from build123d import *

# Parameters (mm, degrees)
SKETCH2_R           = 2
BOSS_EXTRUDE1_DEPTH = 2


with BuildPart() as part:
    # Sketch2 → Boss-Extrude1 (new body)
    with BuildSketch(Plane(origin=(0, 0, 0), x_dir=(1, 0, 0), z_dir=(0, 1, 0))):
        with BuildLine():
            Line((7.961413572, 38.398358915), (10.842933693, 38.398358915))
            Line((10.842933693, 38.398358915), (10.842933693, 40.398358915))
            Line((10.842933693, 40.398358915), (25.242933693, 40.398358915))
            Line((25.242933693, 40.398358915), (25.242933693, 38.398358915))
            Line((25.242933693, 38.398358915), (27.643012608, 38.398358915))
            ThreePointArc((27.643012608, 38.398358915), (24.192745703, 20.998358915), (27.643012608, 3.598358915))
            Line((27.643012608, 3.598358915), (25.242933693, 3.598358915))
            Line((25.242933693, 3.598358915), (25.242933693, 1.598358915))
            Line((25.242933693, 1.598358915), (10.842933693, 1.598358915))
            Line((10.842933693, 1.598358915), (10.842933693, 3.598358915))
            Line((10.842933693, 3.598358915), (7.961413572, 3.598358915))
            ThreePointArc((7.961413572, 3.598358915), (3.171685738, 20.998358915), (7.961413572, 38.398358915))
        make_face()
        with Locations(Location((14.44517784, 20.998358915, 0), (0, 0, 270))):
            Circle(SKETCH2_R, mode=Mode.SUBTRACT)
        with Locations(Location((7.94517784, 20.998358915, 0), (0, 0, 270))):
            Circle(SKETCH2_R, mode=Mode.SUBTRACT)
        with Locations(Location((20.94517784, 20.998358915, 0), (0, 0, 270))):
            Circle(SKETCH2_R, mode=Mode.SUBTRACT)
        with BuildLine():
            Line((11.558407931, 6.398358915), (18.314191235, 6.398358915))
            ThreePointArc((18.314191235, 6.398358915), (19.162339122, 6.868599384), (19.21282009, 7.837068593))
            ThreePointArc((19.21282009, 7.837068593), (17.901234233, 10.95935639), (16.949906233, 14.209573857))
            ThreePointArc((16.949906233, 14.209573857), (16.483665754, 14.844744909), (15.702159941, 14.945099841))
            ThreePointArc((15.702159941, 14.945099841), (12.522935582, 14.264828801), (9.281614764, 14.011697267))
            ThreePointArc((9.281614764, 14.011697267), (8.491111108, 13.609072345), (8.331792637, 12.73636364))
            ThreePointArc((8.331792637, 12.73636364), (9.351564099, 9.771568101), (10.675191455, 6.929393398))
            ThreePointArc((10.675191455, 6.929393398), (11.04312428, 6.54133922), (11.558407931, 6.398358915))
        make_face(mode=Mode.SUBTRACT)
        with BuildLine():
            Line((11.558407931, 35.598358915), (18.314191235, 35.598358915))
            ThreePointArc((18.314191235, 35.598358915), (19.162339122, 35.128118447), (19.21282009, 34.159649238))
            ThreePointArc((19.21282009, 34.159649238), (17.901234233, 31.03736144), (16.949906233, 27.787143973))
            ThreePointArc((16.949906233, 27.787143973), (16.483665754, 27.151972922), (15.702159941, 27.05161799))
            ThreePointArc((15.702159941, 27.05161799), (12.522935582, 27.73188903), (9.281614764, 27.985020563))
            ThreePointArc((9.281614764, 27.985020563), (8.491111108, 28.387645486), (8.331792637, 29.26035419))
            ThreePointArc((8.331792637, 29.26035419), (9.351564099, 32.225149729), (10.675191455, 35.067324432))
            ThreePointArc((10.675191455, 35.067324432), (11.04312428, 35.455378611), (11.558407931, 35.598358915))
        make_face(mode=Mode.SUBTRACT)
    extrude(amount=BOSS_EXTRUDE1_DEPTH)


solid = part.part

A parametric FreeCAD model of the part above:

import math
import FreeCAD as App
import Part
import Sketcher
Q = App.Units.Quantity

doc = App.newDocument("Part")
params = doc.addObject("Spreadsheet::Sheet", "Params")
for row, (alias, value) in enumerate([
    ("sketch1_diameter", "4 mm"),
    ("sketch1_radius", "34 mm"),
    ("sketch1_radius2", "1 mm"),
    ("sketch1_radius3", "30 mm"),
    ("sketch1_radius4", "45.6 mm"),
    ("pad1_length", "2 mm"),
], start=1):
    params.set(f"A{row}", alias)
    params.set(f"B{row}", "=" + value)
    params.setAlias(f"B{row}", alias)

body = doc.addObject("PartDesign::Body", "Body")

# Sketch on XZ plane
sketch1 = body.newObject("Sketcher::SketchObject", "Sketch")
sketch1.AttachmentSupport = (doc.getObject("XZ_Plane"), [""])
sketch1.MapMode = "FlatFace"
sketch1.addGeometry(Part.LineSegment(App.Vector(10.842934, -38.398359, 0), App.Vector(7.961414, -38.398359, 0)), False)
sketch1.addGeometry(Part.ArcOfCircle(Part.Circle(App.Vector(37.171686, -20.998359, 0), App.Vector(0, 0, 1), 34), math.radians(149.218552), math.radians(210.781448)), False)
sketch1.addGeometry(Part.LineSegment(App.Vector(7.961414, -3.598359, 0), App.Vector(10.842934, -3.598359, 0)), False)
sketch1.addGeometry(Part.LineSegment(App.Vector(10.842934, -3.598359, 0), App.Vector(10.842934, -1.598359, 0)), False)
sketch1.addGeometry(Part.LineSegment(App.Vector(10.842934, -1.598359, 0), App.Vector(25.242934, -1.598359, 0)), False)
sketch1.addGeometry(Part.LineSegment(App.Vector(25.242934, -1.598359, 0), App.Vector(25.242934, -3.598359, 0)), False)
sketch1.addGeometry(Part.LineSegment(App.Vector(25.242934, -3.598359, 0), App.Vector(27.643013, -3.598359, 0)), False)
sketch1.addGeometry(Part.ArcOfCircle(Part.Circle(App.Vector(69.792746, -20.998359, 0), App.Vector(0, 0, 1), 45.6), math.radians(157.568479), math.radians(202.431521)), False)
sketch1.addGeometry(Part.LineSegment(App.Vector(27.643013, -38.398359, 0), App.Vector(25.242934, -38.398359, 0)), False)
sketch1.addGeometry(Part.LineSegment(App.Vector(25.242934, -38.398359, 0), App.Vector(25.242934, -40.398359, 0)), False)
sketch1.addGeometry(Part.LineSegment(App.Vector(25.242934, -40.398359, 0), App.Vector(10.842934, -40.398359, 0)), False)
sketch1.addGeometry(Part.LineSegment(App.Vector(10.842934, -40.398359, 0), App.Vector(10.842934, -38.398359, 0)), False)
sketch1.addGeometry(Part.ArcOfCircle(Part.Circle(App.Vector(11.558408, -7.398359, 0), App.Vector(0, 0, 1), 1), math.radians(90), math.radians(152.032833)), False)
sketch1.addGeometry(Part.ArcOfCircle(Part.Circle(App.Vector(37.171686, -20.998359, 0), App.Vector(0, 0, 1), 30), math.radians(152.032833), math.radians(164.014156)), False)
sketch1.addGeometry(Part.ArcOfCircle(Part.Circle(App.Vector(9.293122, -13.011763, 0), App.Vector(0, 0, 1), 1), math.radians(164.014156), math.radians(269.340646)), False)
sketch1.addGeometry(Part.ArcOfCircle(Part.Circle(App.Vector(8.999803, -38.499211, 0), App.Vector(0, 0, 1), 24.489135), math.radians(74.116218), math.radians(89.340646)), False)
sketch1.addGeometry(Part.ArcOfCircle(Part.Circle(App.Vector(15.975847, -13.983281, 0), App.Vector(0, 0, 1), 1), math.radians(-105.883782), math.radians(-13.078913)), False)
sketch1.addGeometry(Part.ArcOfCircle(Part.Circle(App.Vector(46.171686, -20.998359, 0), App.Vector(0, 0, 1), 30), math.radians(153.978418), math.radians(166.921087)), False)
sketch1.addGeometry(Part.ArcOfCircle(Part.Circle(App.Vector(18.314191, -7.398359, 0), App.Vector(0, 0, 1), 1), math.radians(-26.021582), math.radians(90)), False)
sketch1.addGeometry(Part.LineSegment(App.Vector(18.314191, -6.398359, 0), App.Vector(11.558408, -6.398359, 0)), False)
sketch1.addGeometry(Part.Circle(App.Vector(20.945178, -20.998359, 0), App.Vector(0, 0, 1), 2), False)
sketch1.addGeometry(Part.Circle(App.Vector(14.445178, -20.998359, 0), App.Vector(0, 0, 1), 2), False)
sketch1.addGeometry(Part.Circle(App.Vector(7.945178, -20.998359, 0), App.Vector(0, 0, 1), 2), False)
sketch1.addGeometry(Part.LineSegment(App.Vector(11.558408, -35.598359, 0), App.Vector(18.314191, -35.598359, 0)), False)
sketch1.addGeometry(Part.ArcOfCircle(Part.Circle(App.Vector(18.314191, -34.598359, 0), App.Vector(0, 0, 1), 1), math.radians(-90), math.radians(26.021582)), False)
sketch1.addGeometry(Part.ArcOfCircle(Part.Circle(App.Vector(46.171686, -20.998359, 0), App.Vector(0, 0, 1), 30), math.radians(-166.921087), math.radians(-153.978418)), False)
sketch1.addGeometry(Part.ArcOfCircle(Part.Circle(App.Vector(15.975847, -28.013437, 0), App.Vector(0, 0, 1), 1), math.radians(13.078913), math.radians(105.883782)), False)
sketch1.addGeometry(Part.ArcOfCircle(Part.Circle(App.Vector(8.999803, -3.497507, 0), App.Vector(0, 0, 1), 24.489135), math.radians(-89.340646), math.radians(-74.116218)), False)
sketch1.addGeometry(Part.ArcOfCircle(Part.Circle(App.Vector(9.293122, -28.984954, 0), App.Vector(0, 0, 1), 1), math.radians(90.659354), math.radians(195.985844)), False)
sketch1.addGeometry(Part.ArcOfCircle(Part.Circle(App.Vector(37.171686, -20.998359, 0), App.Vector(0, 0, 1), 30), math.radians(-164.014156), math.radians(-152.032833)), False)
sketch1.addGeometry(Part.ArcOfCircle(Part.Circle(App.Vector(11.558408, -34.598359, 0), App.Vector(0, 0, 1), 1), math.radians(-152.032833), math.radians(-90)), False)
sketch1.addConstraint(Sketcher.Constraint("Coincident", 0, 2, 1, 2))
sketch1.addConstraint(Sketcher.Constraint("Coincident", 1, 1, 2, 1))
sketch1.addConstraint(Sketcher.Constraint("Coincident", 2, 2, 3, 1))
sketch1.addConstraint(Sketcher.Constraint("Coincident", 3, 2, 4, 1))
sketch1.addConstraint(Sketcher.Constraint("Coincident", 4, 2, 5, 1))
sketch1.addConstraint(Sketcher.Constraint("Coincident", 5, 2, 6, 1))
sketch1.addConstraint(Sketcher.Constraint("Coincident", 6, 2, 7, 1))
sketch1.addConstraint(Sketcher.Constraint("Coincident", 7, 2, 8, 1))
sketch1.addConstraint(Sketcher.Constraint("Coincident", 8, 2, 9, 1))
sketch1.addConstraint(Sketcher.Constraint("Coincident", 9, 2, 10, 1))
sketch1.addConstraint(Sketcher.Constraint("Coincident", 10, 2, 11, 1))
sketch1.addConstraint(Sketcher.Constraint("Coincident", 11, 2, 0, 1))
sketch1.addConstraint(Sketcher.Constraint("Tangent", 12, 2, 13, 1))
sketch1.addConstraint(Sketcher.Constraint("Tangent", 13, 2, 14, 1))
sketch1.addConstraint(Sketcher.Constraint("Tangent", 14, 2, 15, 2))
sketch1.addConstraint(Sketcher.Constraint("Tangent", 15, 1, 16, 1))
sketch1.addConstraint(Sketcher.Constraint("Tangent", 16, 2, 17, 2))
sketch1.addConstraint(Sketcher.Constraint("Tangent", 17, 1, 18, 1))
sketch1.addConstraint(Sketcher.Constraint("Tangent", 18, 2, 19, 1))
sketch1.addConstraint(Sketcher.Constraint("Tangent", 19, 2, 12, 1))
sketch1.addConstraint(Sketcher.Constraint("Tangent", 23, 2, 24, 1))
sketch1.addConstraint(Sketcher.Constraint("Tangent", 24, 2, 25, 2))
sketch1.addConstraint(Sketcher.Constraint("Tangent", 25, 1, 26, 1))
sketch1.addConstraint(Sketcher.Constraint("Tangent", 26, 2, 27, 2))
sketch1.addConstraint(Sketcher.Constraint("Tangent", 27, 1, 28, 1))
sketch1.addConstraint(Sketcher.Constraint("Tangent", 28, 2, 29, 1))
sketch1.addConstraint(Sketcher.Constraint("Tangent", 29, 2, 30, 1))
sketch1.addConstraint(Sketcher.Constraint("Tangent", 30, 2, 23, 1))
sketch1.addConstraint(Sketcher.Constraint("Horizontal", 0))
sketch1.addConstraint(Sketcher.Constraint("Horizontal", 2))
sketch1.addConstraint(Sketcher.Constraint("Vertical", 3))
sketch1.addConstraint(Sketcher.Constraint("Horizontal", 4))
sketch1.addConstraint(Sketcher.Constraint("Vertical", 5))
sketch1.addConstraint(Sketcher.Constraint("Horizontal", 6))
sketch1.addConstraint(Sketcher.Constraint("Horizontal", 8))
sketch1.addConstraint(Sketcher.Constraint("Vertical", 9))
sketch1.addConstraint(Sketcher.Constraint("Horizontal", 10))
sketch1.addConstraint(Sketcher.Constraint("Vertical", 11))
sketch1.addConstraint(Sketcher.Constraint("Horizontal", 19))
sketch1.addConstraint(Sketcher.Constraint("Horizontal", 23))
sketch1.addConstraint(Sketcher.Constraint("Coincident", 13, 3, 1, 3))
sketch1.addConstraint(Sketcher.Constraint("Coincident", 25, 3, 17, 3))
sketch1.addConstraint(Sketcher.Constraint("Coincident", 29, 3, 1, 3))
sketch1.addConstraint(Sketcher.Constraint("Equal", 12, 14))
sketch1.addConstraint(Sketcher.Constraint("Equal", 14, 16))
sketch1.addConstraint(Sketcher.Constraint("Equal", 13, 17))
sketch1.addConstraint(Sketcher.Constraint("Equal", 16, 18))
sketch1.addConstraint(Sketcher.Constraint("Equal", 20, 21))
sketch1.addConstraint(Sketcher.Constraint("Equal", 21, 22))
sketch1.addConstraint(Sketcher.Constraint("Equal", 18, 24))
sketch1.addConstraint(Sketcher.Constraint("Equal", 17, 25))
sketch1.addConstraint(Sketcher.Constraint("Equal", 24, 26))
sketch1.addConstraint(Sketcher.Constraint("Equal", 15, 27))
sketch1.addConstraint(Sketcher.Constraint("Equal", 26, 28))
sketch1.addConstraint(Sketcher.Constraint("Equal", 25, 29))
sketch1.addConstraint(Sketcher.Constraint("Equal", 28, 30))
sketch1.addConstraint(Sketcher.Constraint("Horizontal", 1, 3, 7, 3))
sketch1.addConstraint(Sketcher.Constraint("Horizontal", 13, 3, 17, 3))
sketch1.addConstraint(Sketcher.Constraint("Horizontal", 17, 3, 20, 3))
sketch1.addConstraint(Sketcher.Constraint("Horizontal", 20, 3, 21, 3))
sketch1.addConstraint(Sketcher.Constraint("Horizontal", 21, 3, 22, 3))
sketch1.addConstraint(Sketcher.Constraint("Horizontal", 2, 2, 5, 2))
sketch1.addConstraint(Sketcher.Constraint("Horizontal", 0, 2, 7, 2))
sketch1.addConstraint(Sketcher.Constraint("Vertical", 18, 3, 24, 3))
sketch1.addConstraint(Sketcher.Constraint("Vertical", 16, 3, 26, 3))
sketch1.addConstraint(Sketcher.Constraint("Vertical", 15, 3, 27, 3))
sketch1.addConstraint(Sketcher.Constraint("Vertical", 0, 2, 1, 1))
sketch1.addConstraint(Sketcher.Constraint("Vertical", 5, 2, 8, 2))
sketch1.addConstraint(Sketcher.Constraint("Vertical", 3, 2, 10, 2))
sketch1.addConstraint(Sketcher.Constraint("Equal", 5, 9))
sketch1.addConstraint(Sketcher.Constraint("Diameter", 20, Q("4 mm")))
sketch1.addConstraint(Sketcher.Constraint("Radius", 1, Q("34 mm")))
sketch1.addConstraint(Sketcher.Constraint("Radius", 12, Q("1 mm")))
sketch1.addConstraint(Sketcher.Constraint("Radius", 13, Q("30 mm")))
sketch1.addConstraint(Sketcher.Constraint("Radius", 7, Q("45.6 mm")))
sketch1.addConstraint(Sketcher.Constraint("DistanceY", 3, 1, 3, 2, Q("2 mm")))
sketch1.addConstraint(Sketcher.Constraint("DistanceX", 4, 1, 4, 2, Q("14.4 mm")))
sketch1.addConstraint(Sketcher.Constraint("DistanceX", 13, 3, 17, 3, Q("9 mm")))
sketch1.addConstraint(Sketcher.Constraint("DistanceX", 22, 3, 20, 3, Q("13 mm")))
sketch1.addConstraint(Sketcher.Constraint("DistanceY", 1, 3, 12, 3, Q("13.6 mm")))
sketch1.addConstraint(Sketcher.Constraint("DistanceX", 21, 3, 20, 3, Q("6.5 mm")))
sketch1.addConstraint(Sketcher.Constraint("DistanceY", 0, 2, 30, 3, Q("3.8 mm")))
sketch1.addConstraint(Sketcher.Constraint("Radius", 15, Q("24.489135 mm")))
sketch1.addConstraint(Sketcher.Constraint("DistanceX", 0, 2, 0, 1, Q("2.88152 mm")))
sketch1.addConstraint(Sketcher.Constraint("DistanceX", 6, 1, 6, 2, Q("2.400079 mm")))
sketch1.addConstraint(Sketcher.Constraint("DistanceY", 15, 1, -1, 1, Q("14.9451 mm")))
sketch1.addConstraint(Sketcher.Constraint("DistanceX", 13, 2, 12, 2, Q("2.343399 mm")))
sketch1.addConstraint(Sketcher.Constraint("DistanceY", 1, 3, -1, 1, Q("20.998359 mm")))
sketch1.addConstraint(Sketcher.Constraint("DistanceX", -1, 1, 18, 3, Q("18.314191 mm")))
sketch1.addConstraint(Sketcher.Constraint("DistanceX", 16, 3, 20, 3, Q("4.969331 mm")))
sketch1.setExpression("Constraints[70]", "Params.sketch1_diameter")
sketch1.setExpression("Constraints[71]", "Params.sketch1_radius")
sketch1.setExpression("Constraints[72]", "Params.sketch1_radius2")
sketch1.setExpression("Constraints[73]", "Params.sketch1_radius3")
sketch1.setExpression("Constraints[74]", "Params.sketch1_radius4")
pad1 = body.newObject("PartDesign::Pad", "Pad")
pad1.Profile = sketch1
pad1.setExpression("Length", "Params.pad1_length")
pad1.Reversed = True

doc.recompute()
